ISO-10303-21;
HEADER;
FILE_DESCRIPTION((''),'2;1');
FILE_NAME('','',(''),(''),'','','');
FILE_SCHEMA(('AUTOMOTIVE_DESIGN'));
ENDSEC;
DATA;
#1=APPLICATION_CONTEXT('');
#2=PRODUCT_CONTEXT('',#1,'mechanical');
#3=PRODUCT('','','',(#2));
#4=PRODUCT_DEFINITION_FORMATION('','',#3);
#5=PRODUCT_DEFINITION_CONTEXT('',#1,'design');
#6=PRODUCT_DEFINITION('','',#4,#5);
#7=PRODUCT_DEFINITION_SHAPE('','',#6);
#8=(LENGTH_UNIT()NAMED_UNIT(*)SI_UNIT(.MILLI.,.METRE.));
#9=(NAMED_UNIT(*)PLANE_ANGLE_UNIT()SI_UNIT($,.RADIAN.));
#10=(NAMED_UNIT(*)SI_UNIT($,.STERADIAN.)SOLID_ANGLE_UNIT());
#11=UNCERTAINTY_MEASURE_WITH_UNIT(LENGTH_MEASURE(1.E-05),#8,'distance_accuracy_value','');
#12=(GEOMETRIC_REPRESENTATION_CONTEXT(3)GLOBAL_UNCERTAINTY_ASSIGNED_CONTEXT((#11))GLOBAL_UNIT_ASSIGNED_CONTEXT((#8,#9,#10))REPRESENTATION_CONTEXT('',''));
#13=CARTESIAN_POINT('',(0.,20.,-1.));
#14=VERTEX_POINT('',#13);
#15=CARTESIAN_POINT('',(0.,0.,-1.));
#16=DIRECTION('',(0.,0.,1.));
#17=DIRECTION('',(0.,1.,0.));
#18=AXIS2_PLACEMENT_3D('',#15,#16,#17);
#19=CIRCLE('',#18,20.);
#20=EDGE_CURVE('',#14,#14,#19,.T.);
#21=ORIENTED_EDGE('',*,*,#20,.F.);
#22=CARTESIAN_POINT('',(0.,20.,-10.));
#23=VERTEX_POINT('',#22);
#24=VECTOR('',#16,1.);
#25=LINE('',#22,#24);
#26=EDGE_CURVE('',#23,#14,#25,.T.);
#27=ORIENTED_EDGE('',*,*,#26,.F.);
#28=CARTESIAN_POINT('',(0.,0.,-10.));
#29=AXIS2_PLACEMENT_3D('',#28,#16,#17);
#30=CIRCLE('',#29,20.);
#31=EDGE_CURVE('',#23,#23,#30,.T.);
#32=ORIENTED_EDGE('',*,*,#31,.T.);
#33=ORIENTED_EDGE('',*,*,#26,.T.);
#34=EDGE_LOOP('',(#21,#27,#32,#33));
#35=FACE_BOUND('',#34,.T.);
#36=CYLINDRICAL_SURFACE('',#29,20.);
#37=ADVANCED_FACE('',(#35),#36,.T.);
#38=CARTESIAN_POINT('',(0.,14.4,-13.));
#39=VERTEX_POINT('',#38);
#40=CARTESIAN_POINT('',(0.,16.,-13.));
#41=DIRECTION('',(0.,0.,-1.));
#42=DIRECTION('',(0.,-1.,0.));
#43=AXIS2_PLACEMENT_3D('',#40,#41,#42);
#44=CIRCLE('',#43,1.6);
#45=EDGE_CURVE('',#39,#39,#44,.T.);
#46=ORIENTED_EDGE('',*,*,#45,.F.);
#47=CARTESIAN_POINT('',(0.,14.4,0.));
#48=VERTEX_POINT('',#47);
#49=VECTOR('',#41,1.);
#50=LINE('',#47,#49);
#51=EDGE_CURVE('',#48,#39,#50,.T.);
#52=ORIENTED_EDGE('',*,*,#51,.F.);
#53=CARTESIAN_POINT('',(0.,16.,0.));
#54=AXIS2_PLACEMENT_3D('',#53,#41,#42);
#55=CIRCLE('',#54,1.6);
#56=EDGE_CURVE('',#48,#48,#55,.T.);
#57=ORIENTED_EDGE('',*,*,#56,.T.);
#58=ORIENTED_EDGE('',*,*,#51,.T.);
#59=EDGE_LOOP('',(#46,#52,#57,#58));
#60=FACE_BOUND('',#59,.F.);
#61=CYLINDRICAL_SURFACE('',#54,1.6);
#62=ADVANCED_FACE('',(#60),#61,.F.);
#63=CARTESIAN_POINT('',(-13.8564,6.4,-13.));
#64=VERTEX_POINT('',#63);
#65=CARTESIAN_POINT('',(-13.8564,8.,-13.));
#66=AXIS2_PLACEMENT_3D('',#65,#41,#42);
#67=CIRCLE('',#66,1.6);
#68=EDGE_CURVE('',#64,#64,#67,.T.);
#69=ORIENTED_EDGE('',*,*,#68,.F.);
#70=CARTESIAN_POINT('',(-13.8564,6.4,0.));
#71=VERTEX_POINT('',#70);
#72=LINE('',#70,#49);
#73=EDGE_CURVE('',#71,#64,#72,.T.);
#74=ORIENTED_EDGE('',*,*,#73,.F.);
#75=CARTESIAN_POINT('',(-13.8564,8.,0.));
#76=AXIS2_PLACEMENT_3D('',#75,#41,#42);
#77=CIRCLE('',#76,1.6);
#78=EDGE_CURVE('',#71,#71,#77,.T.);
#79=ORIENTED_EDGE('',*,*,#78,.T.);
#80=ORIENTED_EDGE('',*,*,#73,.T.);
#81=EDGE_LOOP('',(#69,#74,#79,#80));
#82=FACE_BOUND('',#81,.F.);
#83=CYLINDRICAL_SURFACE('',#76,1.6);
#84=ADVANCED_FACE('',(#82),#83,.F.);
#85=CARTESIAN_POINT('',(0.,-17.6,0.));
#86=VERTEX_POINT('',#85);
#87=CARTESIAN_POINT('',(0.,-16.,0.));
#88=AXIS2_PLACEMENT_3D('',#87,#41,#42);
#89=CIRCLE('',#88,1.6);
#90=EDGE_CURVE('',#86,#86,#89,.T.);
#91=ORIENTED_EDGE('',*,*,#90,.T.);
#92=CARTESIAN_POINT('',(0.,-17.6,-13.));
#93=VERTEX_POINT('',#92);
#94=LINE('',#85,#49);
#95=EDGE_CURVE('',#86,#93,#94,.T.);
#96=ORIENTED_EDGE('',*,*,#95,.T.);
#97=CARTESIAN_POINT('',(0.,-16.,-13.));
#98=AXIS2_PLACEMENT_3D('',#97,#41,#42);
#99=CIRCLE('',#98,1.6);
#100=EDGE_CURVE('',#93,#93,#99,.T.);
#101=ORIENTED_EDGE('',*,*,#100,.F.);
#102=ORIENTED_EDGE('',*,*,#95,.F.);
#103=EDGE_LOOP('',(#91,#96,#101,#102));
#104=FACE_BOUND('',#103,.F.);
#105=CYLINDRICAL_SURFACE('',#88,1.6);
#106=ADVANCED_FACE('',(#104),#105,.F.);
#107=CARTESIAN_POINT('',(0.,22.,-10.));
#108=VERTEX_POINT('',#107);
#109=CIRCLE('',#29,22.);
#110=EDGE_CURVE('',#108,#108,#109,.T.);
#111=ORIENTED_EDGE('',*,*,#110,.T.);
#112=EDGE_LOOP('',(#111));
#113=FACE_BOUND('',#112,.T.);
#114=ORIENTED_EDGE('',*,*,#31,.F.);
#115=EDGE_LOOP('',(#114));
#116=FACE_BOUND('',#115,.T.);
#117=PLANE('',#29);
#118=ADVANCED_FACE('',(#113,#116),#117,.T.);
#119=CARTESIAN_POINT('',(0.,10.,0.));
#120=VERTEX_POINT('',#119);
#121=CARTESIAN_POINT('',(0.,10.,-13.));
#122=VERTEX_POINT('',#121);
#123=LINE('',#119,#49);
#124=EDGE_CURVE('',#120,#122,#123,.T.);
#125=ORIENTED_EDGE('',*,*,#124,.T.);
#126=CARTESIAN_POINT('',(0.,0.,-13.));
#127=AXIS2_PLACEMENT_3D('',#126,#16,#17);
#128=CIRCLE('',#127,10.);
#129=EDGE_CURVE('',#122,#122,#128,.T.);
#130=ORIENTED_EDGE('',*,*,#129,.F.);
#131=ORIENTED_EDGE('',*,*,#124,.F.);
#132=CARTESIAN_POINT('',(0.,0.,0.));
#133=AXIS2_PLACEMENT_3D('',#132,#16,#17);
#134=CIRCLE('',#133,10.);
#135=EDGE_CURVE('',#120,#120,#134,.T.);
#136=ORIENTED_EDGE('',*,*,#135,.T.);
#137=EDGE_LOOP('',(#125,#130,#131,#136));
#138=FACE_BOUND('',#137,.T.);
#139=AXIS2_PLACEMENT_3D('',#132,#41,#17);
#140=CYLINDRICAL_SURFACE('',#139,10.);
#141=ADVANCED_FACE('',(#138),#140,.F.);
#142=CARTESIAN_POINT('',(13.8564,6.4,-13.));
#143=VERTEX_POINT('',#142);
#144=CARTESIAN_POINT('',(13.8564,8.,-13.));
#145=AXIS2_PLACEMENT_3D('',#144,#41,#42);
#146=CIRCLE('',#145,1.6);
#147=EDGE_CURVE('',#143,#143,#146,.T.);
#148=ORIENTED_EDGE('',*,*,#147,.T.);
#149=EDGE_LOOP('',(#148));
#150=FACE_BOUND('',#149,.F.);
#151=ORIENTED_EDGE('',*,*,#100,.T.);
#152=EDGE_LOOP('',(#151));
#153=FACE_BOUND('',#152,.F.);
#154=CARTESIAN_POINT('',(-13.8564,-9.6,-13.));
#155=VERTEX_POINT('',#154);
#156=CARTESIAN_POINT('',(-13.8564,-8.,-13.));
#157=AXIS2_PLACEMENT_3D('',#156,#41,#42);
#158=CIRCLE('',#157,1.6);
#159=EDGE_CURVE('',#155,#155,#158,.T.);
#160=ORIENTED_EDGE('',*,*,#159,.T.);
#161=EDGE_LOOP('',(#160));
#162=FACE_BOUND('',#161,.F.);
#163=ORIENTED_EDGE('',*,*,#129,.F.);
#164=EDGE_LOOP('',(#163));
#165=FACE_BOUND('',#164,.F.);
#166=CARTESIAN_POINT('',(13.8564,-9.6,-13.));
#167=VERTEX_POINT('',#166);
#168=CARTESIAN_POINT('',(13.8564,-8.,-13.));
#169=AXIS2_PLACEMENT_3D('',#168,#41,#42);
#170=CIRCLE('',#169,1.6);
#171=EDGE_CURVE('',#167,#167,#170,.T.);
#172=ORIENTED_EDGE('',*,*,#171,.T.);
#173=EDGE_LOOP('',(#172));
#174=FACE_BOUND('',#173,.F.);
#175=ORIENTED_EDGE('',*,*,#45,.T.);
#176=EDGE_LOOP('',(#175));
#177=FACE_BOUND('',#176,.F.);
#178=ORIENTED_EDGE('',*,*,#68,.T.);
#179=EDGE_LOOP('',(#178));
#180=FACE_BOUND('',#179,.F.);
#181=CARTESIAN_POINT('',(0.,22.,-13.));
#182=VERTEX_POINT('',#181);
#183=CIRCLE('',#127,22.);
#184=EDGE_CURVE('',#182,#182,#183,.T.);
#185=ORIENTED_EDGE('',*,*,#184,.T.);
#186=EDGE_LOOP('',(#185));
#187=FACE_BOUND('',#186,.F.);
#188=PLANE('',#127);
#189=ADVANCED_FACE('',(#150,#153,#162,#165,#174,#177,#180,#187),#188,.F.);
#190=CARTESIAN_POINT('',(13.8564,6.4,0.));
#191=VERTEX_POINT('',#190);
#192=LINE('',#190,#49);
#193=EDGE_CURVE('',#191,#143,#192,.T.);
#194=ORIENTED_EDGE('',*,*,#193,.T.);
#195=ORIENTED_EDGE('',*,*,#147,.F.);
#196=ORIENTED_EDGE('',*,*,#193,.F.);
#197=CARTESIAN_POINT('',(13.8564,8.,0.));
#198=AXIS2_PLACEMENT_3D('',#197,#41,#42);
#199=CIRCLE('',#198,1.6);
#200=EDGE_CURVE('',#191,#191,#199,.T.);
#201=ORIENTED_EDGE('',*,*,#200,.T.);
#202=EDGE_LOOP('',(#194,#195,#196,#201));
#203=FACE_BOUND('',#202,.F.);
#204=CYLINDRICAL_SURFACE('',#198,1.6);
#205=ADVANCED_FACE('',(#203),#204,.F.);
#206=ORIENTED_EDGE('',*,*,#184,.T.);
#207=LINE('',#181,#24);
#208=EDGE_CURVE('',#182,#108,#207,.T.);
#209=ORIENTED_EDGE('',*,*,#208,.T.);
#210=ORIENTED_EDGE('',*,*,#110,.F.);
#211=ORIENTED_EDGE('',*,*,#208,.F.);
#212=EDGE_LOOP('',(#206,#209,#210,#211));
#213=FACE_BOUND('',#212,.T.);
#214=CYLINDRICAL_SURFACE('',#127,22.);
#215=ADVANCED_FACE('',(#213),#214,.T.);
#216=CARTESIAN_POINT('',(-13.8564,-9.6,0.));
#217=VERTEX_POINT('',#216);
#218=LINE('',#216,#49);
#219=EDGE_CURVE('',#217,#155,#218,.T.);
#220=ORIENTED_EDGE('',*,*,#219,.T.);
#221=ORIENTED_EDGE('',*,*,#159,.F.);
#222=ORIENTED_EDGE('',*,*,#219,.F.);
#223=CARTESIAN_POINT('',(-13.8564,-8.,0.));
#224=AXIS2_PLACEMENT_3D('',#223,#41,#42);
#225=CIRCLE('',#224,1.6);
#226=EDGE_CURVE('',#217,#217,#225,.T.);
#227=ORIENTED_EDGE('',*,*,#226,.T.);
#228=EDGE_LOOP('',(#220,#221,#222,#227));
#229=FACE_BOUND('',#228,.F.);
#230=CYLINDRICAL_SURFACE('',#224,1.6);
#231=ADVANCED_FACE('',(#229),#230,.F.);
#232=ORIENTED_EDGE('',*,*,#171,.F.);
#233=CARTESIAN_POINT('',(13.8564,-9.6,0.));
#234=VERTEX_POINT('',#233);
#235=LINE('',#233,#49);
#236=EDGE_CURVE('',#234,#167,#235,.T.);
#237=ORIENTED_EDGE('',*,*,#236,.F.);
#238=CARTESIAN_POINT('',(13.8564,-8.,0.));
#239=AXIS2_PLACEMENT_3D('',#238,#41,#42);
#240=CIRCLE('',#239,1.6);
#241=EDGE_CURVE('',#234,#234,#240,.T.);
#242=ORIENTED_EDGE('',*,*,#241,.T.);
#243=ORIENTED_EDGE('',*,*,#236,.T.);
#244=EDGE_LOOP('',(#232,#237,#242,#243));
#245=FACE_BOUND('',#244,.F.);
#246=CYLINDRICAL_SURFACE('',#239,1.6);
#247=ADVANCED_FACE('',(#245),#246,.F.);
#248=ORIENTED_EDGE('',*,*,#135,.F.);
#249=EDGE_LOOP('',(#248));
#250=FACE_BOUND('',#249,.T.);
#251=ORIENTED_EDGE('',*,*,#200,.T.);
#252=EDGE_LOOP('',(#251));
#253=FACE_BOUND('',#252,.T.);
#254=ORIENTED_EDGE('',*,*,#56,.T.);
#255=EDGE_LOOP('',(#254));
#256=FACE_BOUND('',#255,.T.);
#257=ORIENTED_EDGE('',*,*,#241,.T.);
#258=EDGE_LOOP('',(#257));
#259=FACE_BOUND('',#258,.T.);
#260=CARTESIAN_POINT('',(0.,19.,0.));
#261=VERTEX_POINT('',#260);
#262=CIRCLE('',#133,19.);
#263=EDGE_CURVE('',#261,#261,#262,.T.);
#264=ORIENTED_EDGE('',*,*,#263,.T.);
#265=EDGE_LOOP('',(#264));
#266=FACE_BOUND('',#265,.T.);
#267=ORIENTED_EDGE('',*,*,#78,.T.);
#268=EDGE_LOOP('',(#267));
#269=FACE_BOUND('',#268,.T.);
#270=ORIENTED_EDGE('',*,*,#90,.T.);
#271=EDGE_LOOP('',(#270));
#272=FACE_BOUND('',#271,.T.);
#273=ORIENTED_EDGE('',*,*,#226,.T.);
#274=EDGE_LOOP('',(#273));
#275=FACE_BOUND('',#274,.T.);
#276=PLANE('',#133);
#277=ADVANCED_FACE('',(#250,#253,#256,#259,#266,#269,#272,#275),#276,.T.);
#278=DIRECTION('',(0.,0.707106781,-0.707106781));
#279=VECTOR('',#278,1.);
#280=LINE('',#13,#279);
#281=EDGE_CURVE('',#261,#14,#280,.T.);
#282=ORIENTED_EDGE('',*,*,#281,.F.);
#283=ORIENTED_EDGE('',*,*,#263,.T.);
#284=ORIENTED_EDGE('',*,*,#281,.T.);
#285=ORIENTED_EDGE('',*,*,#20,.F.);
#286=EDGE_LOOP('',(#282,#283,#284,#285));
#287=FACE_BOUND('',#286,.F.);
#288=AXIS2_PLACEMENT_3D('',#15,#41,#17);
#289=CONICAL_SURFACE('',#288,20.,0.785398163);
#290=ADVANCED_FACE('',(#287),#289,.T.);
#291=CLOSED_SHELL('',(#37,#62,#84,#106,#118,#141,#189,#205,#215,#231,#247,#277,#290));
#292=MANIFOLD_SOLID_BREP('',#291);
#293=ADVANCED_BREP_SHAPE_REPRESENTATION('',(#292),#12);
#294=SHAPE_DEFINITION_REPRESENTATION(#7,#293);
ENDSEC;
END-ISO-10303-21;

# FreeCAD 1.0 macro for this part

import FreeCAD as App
import Part
import Sketcher
Q = App.Units.Quantity


def edges_at(feature, points):
    """Names of the edges that pass closest to the given points."""
    edges = feature.Shape.Edges
    near = lambda p: min(range(len(edges)), key=lambda i: edges[i].distToShape(Part.Vertex(*p))[0])
    return sorted({f"Edge{near(p) + 1}" for p in points})

doc = App.newDocument("Part")
body = doc.addObject("PartDesign::Body", "Body")

# Sketch on YZ plane
sketch1 = doc.addObject("Sketcher::SketchObject", "Sketch")
body.addObject(sketch1)
sketch1.AttachmentSupport = (doc.YZ_Plane, [""])
sketch1.MapMode = "FlatFace"
sketch1.addGeometry(Part.LineSegment(App.Vector(20, 0, 0), App.Vector(10, 0, 0)), False)
sketch1.addGeometry(Part.LineSegment(App.Vector(10, 0, 0), App.Vector(10, -13, 0)), False)
sketch1.addGeometry(Part.LineSegment(App.Vector(10, -13, 0), App.Vector(22, -13, 0)), False)
sketch1.addGeometry(Part.LineSegment(App.Vector(22, -13, 0), App.Vector(22, -10, 0)), False)
sketch1.addGeometry(Part.LineSegment(App.Vector(22, -10, 0), App.Vector(20, -10, 0)), False)
sketch1.addGeometry(Part.LineSegment(App.Vector(20, -10, 0), App.Vector(20, 0, 0)), False)
sketch1.addConstraint(Sketcher.Constraint("Coincident", 0, 2, 1, 1))
sketch1.addConstraint(Sketcher.Constraint("Coincident", 1, 2, 2, 1))
sketch1.addConstraint(Sketcher.Constraint("Coincident", 2, 2, 3, 1))
sketch1.addConstraint(Sketcher.Constraint("Coincident", 3, 2, 4, 1))
sketch1.addConstraint(Sketcher.Constraint("Coincident", 4, 2, 5, 1))
sketch1.addConstraint(Sketcher.Constraint("Coincident", 5, 2, 0, 1))
sketch1.addConstraint(Sketcher.Constraint("Horizontal", 0))
sketch1.addConstraint(Sketcher.Constraint("Vertical", 1))
sketch1.addConstraint(Sketcher.Constraint("Horizontal", 2))
sketch1.addConstraint(Sketcher.Constraint("Vertical", 3))
sketch1.addConstraint(Sketcher.Constraint("Horizontal", 4))
sketch1.addConstraint(Sketcher.Constraint("Vertical", 5))
sketch1.addConstraint(Sketcher.Constraint("PointOnObject", 0, 2, -1))
sketch1.addConstraint(Sketcher.Constraint("Equal", 0, 5))
sketch1.addConstraint(Sketcher.Constraint("DistanceX", 0, 2, 0, 1, Q("10 mm")))
sketch1.addConstraint(Sketcher.Constraint("DistanceX", 4, 2, 4, 1, Q("2 mm")))
sketch1.addConstraint(Sketcher.Constraint("DistanceY", 3, 1, 3, 2, Q("3 mm")))
sketch1.addConstraint(Sketcher.Constraint("DistanceX", -1, 1, 0, 2, Q("10 mm")))
revolution = doc.addObject("PartDesign::Revolution", "Revolution")
body.addObject(revolution)
revolution.Profile = sketch1
revolution.ReferenceAxis = (sketch1, ["V_Axis"])
revolution.Angle = 360

# Sketch on XY plane
sketch2 = doc.addObject("Sketcher::SketchObject", "Sketch001")
body.addObject(sketch2)
sketch2.AttachmentSupport = (doc.XY_Plane, [""])
sketch2.MapMode = "FlatFace"
sketch2.addGeometry(Part.Circle(App.Vector(0, 16, 0), App.Vector(0, 0, 1), 1.6), False)
sketch2.addGeometry(Part.Circle(App.Vector(-13.9, 8, 0), App.Vector(0, 0, 1), 1.6), False)
sketch2.addGeometry(Part.Circle(App.Vector(-13.9, -8, 0), App.Vector(0, 0, 1), 1.6), False)
sketch2.addGeometry(Part.Circle(App.Vector(0, -16, 0), App.Vector(0, 0, 1), 1.6), False)
sketch2.addGeometry(Part.Circle(App.Vector(13.9, -8, 0), App.Vector(0, 0, 1), 1.6), False)
sketch2.addGeometry(Part.Circle(App.Vector(13.9, 8, 0), App.Vector(0, 0, 1), 1.6), False)
sketch2.addConstraint(Sketcher.Constraint("Equal", 0, 1))
sketch2.addConstraint(Sketcher.Constraint("Equal", 1, 2))
sketch2.addConstraint(Sketcher.Constraint("Equal", 2, 3))
sketch2.addConstraint(Sketcher.Constraint("Equal", 3, 4))
sketch2.addConstraint(Sketcher.Constraint("Equal", 4, 5))
sketch2.addConstraint(Sketcher.Constraint("Symmetric", 0, 3, 3, 3, -1, 1))
sketch2.addConstraint(Sketcher.Constraint("Symmetric", 1, 3, 4, 3, -1, 1))
sketch2.addConstraint(Sketcher.Constraint("Symmetric", 2, 3, 5, 3, -1, 1))
sketch2.addConstraint(Sketcher.Constraint("Symmetric", 2, 3, 4, 3, -2))
sketch2.addConstraint(Sketcher.Constraint("PointOnObject", 0, 3, -2))
sketch2.addConstraint(Sketcher.Constraint("Diameter", 0, Q("3.2 mm")))
sketch2.addConstraint(Sketcher.Constraint("DistanceY", -1, 1, 0, 3, Q("16 mm")))
sketch2.addConstraint(Sketcher.Constraint("DistanceY", -1, 1, 1, 3, Q("8 mm")))
sketch2.addConstraint(Sketcher.Constraint("DistanceX", 1, 3, -1, 1, Q("13.8564 mm")))
doc.recompute()
hole = doc.addObject("PartDesign::Hole", "Hole")
body.addObject(hole)
hole.Profile = sketch2
hole.ThreadType = "None"
hole.Diameter = 3.2
hole.DepthType = "ThroughAll"
doc.recompute()

chamfer = doc.addObject("PartDesign::Chamfer", "Chamfer")
body.addObject(chamfer)
chamfer.Base = (hole, edges_at(hole, [(0, -20, 0)]))
chamfer.Size = 1

doc.recompute()
